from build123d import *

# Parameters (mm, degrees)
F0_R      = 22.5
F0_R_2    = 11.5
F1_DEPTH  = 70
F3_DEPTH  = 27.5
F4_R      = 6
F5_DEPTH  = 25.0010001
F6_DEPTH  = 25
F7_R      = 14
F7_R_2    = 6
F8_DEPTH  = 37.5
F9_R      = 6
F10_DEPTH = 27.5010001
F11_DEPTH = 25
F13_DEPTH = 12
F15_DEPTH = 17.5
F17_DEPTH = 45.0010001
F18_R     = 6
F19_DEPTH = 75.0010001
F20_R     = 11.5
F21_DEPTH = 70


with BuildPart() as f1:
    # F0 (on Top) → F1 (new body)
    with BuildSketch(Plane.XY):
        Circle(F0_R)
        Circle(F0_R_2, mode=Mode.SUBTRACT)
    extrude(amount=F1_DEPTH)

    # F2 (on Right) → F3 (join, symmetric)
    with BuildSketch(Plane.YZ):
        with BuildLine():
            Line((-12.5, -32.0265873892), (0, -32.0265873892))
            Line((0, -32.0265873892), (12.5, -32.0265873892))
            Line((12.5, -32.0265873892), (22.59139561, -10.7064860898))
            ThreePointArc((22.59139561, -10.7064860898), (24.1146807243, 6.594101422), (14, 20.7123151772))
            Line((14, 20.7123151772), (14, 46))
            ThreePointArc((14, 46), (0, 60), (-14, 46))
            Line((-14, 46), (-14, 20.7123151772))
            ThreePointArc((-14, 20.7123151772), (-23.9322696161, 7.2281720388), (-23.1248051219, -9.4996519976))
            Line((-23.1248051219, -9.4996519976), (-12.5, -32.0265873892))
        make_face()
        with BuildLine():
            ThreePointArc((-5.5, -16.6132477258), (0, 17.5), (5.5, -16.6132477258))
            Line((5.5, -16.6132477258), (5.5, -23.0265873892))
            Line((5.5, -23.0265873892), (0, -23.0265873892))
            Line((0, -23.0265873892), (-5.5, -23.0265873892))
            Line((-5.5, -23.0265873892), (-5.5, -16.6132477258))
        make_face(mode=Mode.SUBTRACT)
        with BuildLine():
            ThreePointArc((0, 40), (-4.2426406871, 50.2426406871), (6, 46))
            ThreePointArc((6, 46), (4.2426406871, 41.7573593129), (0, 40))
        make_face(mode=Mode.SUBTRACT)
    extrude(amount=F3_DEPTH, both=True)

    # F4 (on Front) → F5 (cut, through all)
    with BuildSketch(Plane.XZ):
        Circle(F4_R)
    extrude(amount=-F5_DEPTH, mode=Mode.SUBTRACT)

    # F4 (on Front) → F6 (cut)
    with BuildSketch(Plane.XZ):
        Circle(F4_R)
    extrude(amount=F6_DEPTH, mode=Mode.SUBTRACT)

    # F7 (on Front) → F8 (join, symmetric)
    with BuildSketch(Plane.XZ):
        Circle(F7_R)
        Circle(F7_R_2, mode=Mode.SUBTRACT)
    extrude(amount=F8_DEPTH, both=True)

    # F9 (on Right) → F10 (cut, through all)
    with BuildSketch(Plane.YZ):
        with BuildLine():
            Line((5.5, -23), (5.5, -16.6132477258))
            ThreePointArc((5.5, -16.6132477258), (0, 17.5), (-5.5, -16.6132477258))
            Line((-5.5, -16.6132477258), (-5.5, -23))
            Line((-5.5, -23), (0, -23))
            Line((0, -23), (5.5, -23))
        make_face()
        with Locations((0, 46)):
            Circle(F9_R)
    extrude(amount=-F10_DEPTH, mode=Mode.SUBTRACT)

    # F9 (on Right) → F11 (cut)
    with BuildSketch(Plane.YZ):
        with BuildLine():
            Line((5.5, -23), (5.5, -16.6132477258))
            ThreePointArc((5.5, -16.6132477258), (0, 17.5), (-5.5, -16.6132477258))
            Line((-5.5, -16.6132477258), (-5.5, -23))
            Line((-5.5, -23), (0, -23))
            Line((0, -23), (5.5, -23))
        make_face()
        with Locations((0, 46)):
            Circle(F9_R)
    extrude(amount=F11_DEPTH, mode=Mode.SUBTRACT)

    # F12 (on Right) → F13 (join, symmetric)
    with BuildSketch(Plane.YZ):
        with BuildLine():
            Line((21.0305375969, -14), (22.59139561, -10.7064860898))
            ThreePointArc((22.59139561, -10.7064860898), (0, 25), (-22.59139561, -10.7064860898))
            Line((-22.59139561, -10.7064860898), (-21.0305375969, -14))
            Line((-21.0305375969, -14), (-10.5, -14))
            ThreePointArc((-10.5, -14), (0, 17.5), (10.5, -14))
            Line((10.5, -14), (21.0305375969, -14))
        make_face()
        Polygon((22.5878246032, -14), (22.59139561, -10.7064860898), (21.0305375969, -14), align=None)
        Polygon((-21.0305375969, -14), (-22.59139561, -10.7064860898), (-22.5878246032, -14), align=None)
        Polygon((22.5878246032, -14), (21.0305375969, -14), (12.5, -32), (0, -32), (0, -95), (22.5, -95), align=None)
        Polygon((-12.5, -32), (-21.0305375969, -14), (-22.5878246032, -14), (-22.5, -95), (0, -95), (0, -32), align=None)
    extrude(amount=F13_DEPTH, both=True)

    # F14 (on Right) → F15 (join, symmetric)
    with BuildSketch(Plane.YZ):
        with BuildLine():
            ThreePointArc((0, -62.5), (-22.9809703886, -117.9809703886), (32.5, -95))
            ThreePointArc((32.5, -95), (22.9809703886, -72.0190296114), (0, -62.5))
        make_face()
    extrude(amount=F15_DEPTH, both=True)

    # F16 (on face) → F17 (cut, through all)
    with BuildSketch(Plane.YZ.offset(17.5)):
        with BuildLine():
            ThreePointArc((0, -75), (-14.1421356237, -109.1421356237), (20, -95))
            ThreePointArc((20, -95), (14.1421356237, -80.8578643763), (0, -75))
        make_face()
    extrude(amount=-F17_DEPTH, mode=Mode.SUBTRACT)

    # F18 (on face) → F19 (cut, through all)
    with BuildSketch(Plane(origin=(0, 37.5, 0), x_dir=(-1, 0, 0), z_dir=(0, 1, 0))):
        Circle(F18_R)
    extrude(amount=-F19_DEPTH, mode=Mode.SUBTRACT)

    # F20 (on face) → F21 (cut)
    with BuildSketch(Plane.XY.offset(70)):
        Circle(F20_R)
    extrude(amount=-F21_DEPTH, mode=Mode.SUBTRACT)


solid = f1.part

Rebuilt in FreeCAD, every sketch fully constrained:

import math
import FreeCAD as App
import Part
import Sketcher
from FreeCAD import Vector

doc = App.newDocument("Part")
body = doc.addObject("PartDesign::Body", "Body")

# Sketch on XY plane
sketch1 = body.newObject("Sketcher::SketchObject", "Sketch")
sketch1.AttachmentSupport = (doc.getObject("XY_Plane"), [""])
sketch1.MapMode = "FlatFace"
sketch1.addGeometry([
    Part.Circle(Vector(0, 0, 0), Vector(0, 0, 1), 22),
    Part.Circle(Vector(0, 0, 0), Vector(0, 0, 1), 12),
], False)
sketch1.addConstraint([
    Sketcher.Constraint("Coincident", 0, 3, -1, 1),
    Sketcher.Constraint("Coincident", 1, 3, -1, 1),
    Sketcher.Constraint("Diameter", 0, 45.0),
    Sketcher.Constraint("Diameter", 1, 23.0),
])
pad1 = body.newObject("PartDesign::Pad", "Pad")
pad1.Profile = sketch1
pad1.Length = 70

# Sketch on YZ plane
sketch2 = body.newObject("Sketcher::SketchObject", "Sketch001")
sketch2.AttachmentSupport = (doc.getObject("YZ_Plane"), [""])
sketch2.MapMode = "FlatFace"
sketch2.addGeometry([
    Part.LineSegment(Vector(-12, -32, 0), Vector(12, -32, 0)),  # 0
    Part.LineSegment(Vector(12, -32, 0), Vector(23, -11, 0)),  # 1
    Part.ArcOfCircle(Part.Circle(Vector(0, 0, 0), Vector(0, 0, 1), 25), math.radians(-25), math.radians(56)),  # 2
    Part.LineSegment(Vector(14, 21, 0), Vector(14, 46, 0)),  # 3
    Part.ArcOfCircle(Part.Circle(Vector(0, 46, 0), Vector(0, 0, 1), 14), math.radians(0), math.radians(180)),  # 4
    Part.LineSegment(Vector(-14, 46, 0), Vector(-14, 21, 0)),  # 5
    Part.ArcOfCircle(Part.Circle(Vector(0, 0, 0), Vector(0, 0, 1), 25), math.radians(124), math.radians(202)),  # 6
    Part.LineSegment(Vector(-23, -9, 0), Vector(-12, -32, 0)),  # 7
    Part.LineSegment(Vector(-6, -23, 0), Vector(-6, -17, 0)),  # 8
    Part.ArcOfCircle(Part.Circle(Vector(0, 0, 0), Vector(0, 0, 1), 18), math.radians(-72), math.radians(252)),  # 9
    Part.LineSegment(Vector(6, -17, 0), Vector(6, -23, 0)),  # 10
    Part.LineSegment(Vector(6, -23, 0), Vector(-6, -23, 0)),  # 11
    Part.ArcOfCircle(Part.Circle(Vector(0, 46, 0), Vector(0, 0, 1), 6), math.radians(-90), math.radians(0)),  # 12
    Part.ArcOfCircle(Part.Circle(Vector(0, 46, 0), Vector(0, 0, 1), 6), math.radians(0), math.radians(270)),  # 13
], False)
sketch2.addConstraint([
    Sketcher.Constraint("Coincident", 0, 2, 1, 1),
    Sketcher.Constraint("Coincident", 1, 2, 2, 1),
    Sketcher.Constraint("Coincident", 2, 2, 3, 1),
    Sketcher.Constraint("Tangent", 3, 2, 4, 1),
    Sketcher.Constraint("Tangent", 4, 2, 5, 1),
    Sketcher.Constraint("Coincident", 5, 2, 6, 1),
    Sketcher.Constraint("Coincident", 6, 2, 7, 1),
    Sketcher.Constraint("Coincident", 7, 2, 0, 1),
    Sketcher.Constraint("Coincident", 8, 2, 9, 2),
    Sketcher.Constraint("Coincident", 9, 1, 10, 1),
    Sketcher.Constraint("Coincident", 10, 2, 11, 1),
    Sketcher.Constraint("Coincident", 11, 2, 8, 1),
    Sketcher.Constraint("Tangent", 12, 1, 13, 2),
    Sketcher.Constraint("Coincident", 13, 1, 12, 2),
    Sketcher.Constraint("Horizontal", 0),
    Sketcher.Constraint("Vertical", 3),
    Sketcher.Constraint("Vertical", 5),
    Sketcher.Constraint("Vertical", 8),
    Sketcher.Constraint("Vertical", 10),
    Sketcher.Constraint("Horizontal", 11),
    Sketcher.Constraint("Coincident", 2, 3, -1, 1),
    Sketcher.Constraint("Coincident", 6, 3, -1, 1),
    Sketcher.Constraint("Coincident", 9, 3, -1, 1),
    Sketcher.Constraint("Coincident", 12, 3, 4, 3),
    Sketcher.Constraint("Equal", 2, 6),
    Sketcher.Constraint("PointOnObject", 4, 3, -2),
    Sketcher.Constraint("PointOnObject", 12, 1, -2),
    Sketcher.Constraint("Horizontal", 8, 2, 9, 1),
    Sketcher.Constraint("Horizontal", 4, 2, 13, 1),
    Sketcher.Constraint("Radius", 2, 25.0),
    Sketcher.Constraint("Radius", 4, 14.0),
    Sketcher.Constraint("Radius", 12, 6.0),
    Sketcher.Constraint("Radius", 9, 17.5),
    Sketcher.Constraint("DistanceX", 0, 1, 0, 2, 25.0),
    Sketcher.Constraint("DistanceX", 11, 2, 11, 1, 11.0),
    Sketcher.Constraint("DistanceY", -1, 1, 4, 3, 46.0),
    Sketcher.Constraint("DistanceX", 7, 2, 8, 2, 7.0),
    Sketcher.Constraint("DistanceY", 0, 2, 10, 2, 9.0),
    Sketcher.Constraint("DistanceY", 8, 1, 8, 2, 6.41334),
    Sketcher.Constraint("DistanceY", 0, 2, 1, 2, 21.320101),
    Sketcher.Constraint("DistanceY", 6, 2, -1, 1, 9.499652),
])
pad2 = body.newObject("PartDesign::Pad", "Pad001")
pad2.Profile = sketch2
pad2.Length = 55
pad2.Midplane = True

# Sketch on XZ plane
sketch3 = body.newObject("Sketcher::SketchObject", "Sketch002")
sketch3.AttachmentSupport = (doc.getObject("XZ_Plane"), [""])
sketch3.MapMode = "FlatFace"
sketch3.addGeometry(Part.Circle(Vector(0, 0, 0), Vector(0, 0, 1), 6), False)
sketch3.addConstraint([
    Sketcher.Constraint("Coincident", 0, 3, -1, 1),
    Sketcher.Constraint("Diameter", 0, 12.0),
])
pocket1 = body.newObject("PartDesign::Pocket", "Pocket")
pocket1.Profile = sketch3
pocket1.Type = "ThroughAll"

# Sketch on XZ plane
sketch4 = body.newObject("Sketcher::SketchObject", "Sketch003")
sketch4.AttachmentSupport = (doc.getObject("XZ_Plane"), [""])
sketch4.MapMode = "FlatFace"
sketch4.addGeometry(Part.Circle(Vector(0, 0, 0), Vector(0, 0, 1), 6), False)
sketch4.addConstraint([
    Sketcher.Constraint("Coincident", 0, 3, -1, 1),
    Sketcher.Constraint("Diameter", 0, 12.0),
])
pocket2 = body.newObject("PartDesign::Pocket", "Pocket001")
pocket2.Profile = sketch4
pocket2.Length = 25
pocket2.Reversed = True

# Sketch on XZ plane
sketch5 = body.newObject("Sketcher::SketchObject", "Sketch004")
sketch5.AttachmentSupport = (doc.getObject("XZ_Plane"), [""])
sketch5.MapMode = "FlatFace"
sketch5.addGeometry([
    Part.Circle(Vector(0, 0, 0), Vector(0, 0, 1), 14),
    Part.Circle(Vector(0, 0, 0), Vector(0, 0, 1), 6),
], False)
sketch5.addConstraint([
    Sketcher.Constraint("Coincident", 0, 3, -1, 1),
    Sketcher.Constraint("Coincident", 1, 3, -1, 1),
    Sketcher.Constraint("Diameter", 0, 28.0),
    Sketcher.Constraint("Diameter", 1, 12.0),
])
pad3 = body.newObject("PartDesign::Pad", "Pad002")
pad3.Profile = sketch5
pad3.Length = 75
pad3.Midplane = True

# Sketch on YZ plane
sketch6 = body.newObject("Sketcher::SketchObject", "Sketch005")
sketch6.AttachmentSupport = (doc.getObject("YZ_Plane"), [""])
sketch6.MapMode = "FlatFace"
sketch6.addGeometry([
    Part.LineSegment(Vector(6, -23, 0), Vector(6, -17, 0)),  # 0
    Part.ArcOfCircle(Part.Circle(Vector(0, 0, 0), Vector(0, 0, 1), 18), math.radians(-72), math.radians(252)),  # 1
    Part.LineSegment(Vector(-6, -17, 0), Vector(-6, -23, 0)),  # 2
    Part.LineSegment(Vector(-6, -23, 0), Vector(6, -23, 0)),  # 3
    Part.Circle(Vector(0, 46, 0), Vector(0, 0, 1), 6),  # 4
], False)
sketch6.addConstraint([
    Sketcher.Constraint("Coincident", 0, 2, 1, 1),
    Sketcher.Constraint("Coincident", 1, 2, 2, 1),
    Sketcher.Constraint("Coincident", 2, 2, 3, 1),
    Sketcher.Constraint("Coincident", 3, 2, 0, 1),
    Sketcher.Constraint("Vertical", 0),
    Sketcher.Constraint("Vertical", 2),
    Sketcher.Constraint("Horizontal", 3),
    Sketcher.Constraint("Coincident", 1, 3, -1, 1),
    Sketcher.Constraint("PointOnObject", 4, 3, -2),
    Sketcher.Constraint("Horizontal", 0, 2, 1, 2),
    Sketcher.Constraint("Diameter", 4, 12.0),
    Sketcher.Constraint("Radius", 1, 17.5),
    Sketcher.Constraint("DistanceX", 3, 1, 3, 2, 11.0),
    Sketcher.Constraint("DistanceY", -1, 1, 4, 3, 46.0),
    Sketcher.Constraint("DistanceY", 2, 2, -1, 1, 23.0),
])
pocket3 = body.newObject("PartDesign::Pocket", "Pocket002")
pocket3.Profile = sketch6
pocket3.Type = "ThroughAll"

# Sketch on YZ plane
sketch7 = body.newObject("Sketcher::SketchObject", "Sketch006")
sketch7.AttachmentSupport = (doc.getObject("YZ_Plane"), [""])
sketch7.MapMode = "FlatFace"
sketch7.addGeometry([
    Part.LineSegment(Vector(6, -23, 0), Vector(6, -17, 0)),  # 0
    Part.ArcOfCircle(Part.Circle(Vector(0, 0, 0), Vector(0, 0, 1), 18), math.radians(-72), math.radians(252)),  # 1
    Part.LineSegment(Vector(-6, -17, 0), Vector(-6, -23, 0)),  # 2
    Part.LineSegment(Vector(-6, -23, 0), Vector(6, -23, 0)),  # 3
    Part.Circle(Vector(0, 46, 0), Vector(0, 0, 1), 6),  # 4
], False)
sketch7.addConstraint([
    Sketcher.Constraint("Coincident", 0, 2, 1, 1),
    Sketcher.Constraint("Coincident", 1, 2, 2, 1),
    Sketcher.Constraint("Coincident", 2, 2, 3, 1),
    Sketcher.Constraint("Coincident", 3, 2, 0, 1),
    Sketcher.Constraint("Vertical", 0),
    Sketcher.Constraint("Vertical", 2),
    Sketcher.Constraint("Horizontal", 3),
    Sketcher.Constraint("Coincident", 1, 3, -1, 1),
    Sketcher.Constraint("PointOnObject", 4, 3, -2),
    Sketcher.Constraint("Horizontal", 0, 2, 1, 2),
    Sketcher.Constraint("Diameter", 4, 12.0),
    Sketcher.Constraint("Radius", 1, 17.5),
    Sketcher.Constraint("DistanceX", 3, 1, 3, 2, 11.0),
    Sketcher.Constraint("DistanceY", -1, 1, 4, 3, 46.0),
    Sketcher.Constraint("DistanceY", 2, 2, -1, 1, 23.0),
])
pocket4 = body.newObject("PartDesign::Pocket", "Pocket003")
pocket4.Profile = sketch7
pocket4.Length = 25
pocket4.Reversed = True

# Sketch on YZ plane
sketch8 = body.newObject("Sketcher::SketchObject", "Sketch007")
sketch8.AttachmentSupport = (doc.getObject("YZ_Plane"), [""])
sketch8.MapMode = "FlatFace"
sketch8.addGeometry([
    Part.ArcOfCircle(Part.Circle(Vector(0, 0, 0), Vector(0, 0, 1), 25), math.radians(-25), math.radians(205)),  # 0
    Part.LineSegment(Vector(-22.6, -10.7, 0), Vector(-22.6, -14, 0)),  # 1
    Part.LineSegment(Vector(-22.6, -14, 0), Vector(-22.5, -95, 0)),  # 2
    Part.LineSegment(Vector(-22.5, -95, 0), Vector(22.5, -95, 0)),  # 3
    Part.LineSegment(Vector(22.5, -95, 0), Vector(22.6, -14, 0)),  # 4
    Part.LineSegment(Vector(22.6, -14, 0), Vector(22.6, -10.7, 0)),  # 5
    Part.LineSegment(Vector(-21, -14, 0), Vector(-10.5, -14, 0)),  # 6
    Part.ArcOfCircle(Part.Circle(Vector(0, 0, 0), Vector(0, 0, 1), 17.5), math.radians(-53), math.radians(233)),  # 7
    Part.LineSegment(Vector(10.5, -14, 0), Vector(21, -14, 0)),  # 8
    Part.LineSegment(Vector(21, -14, 0), Vector(12.5, -32, 0)),  # 9
    Part.LineSegment(Vector(12.5, -32, 0), Vector(-12.5, -32, 0)),  # 10
    Part.LineSegment(Vector(-12.5, -32, 0), Vector(-21, -14, 0)),  # 11
], False)
sketch8.addConstraint([
    Sketcher.Constraint("Coincident", 0, 2, 1, 1),
    Sketcher.Constraint("Coincident", 1, 2, 2, 1),
    Sketcher.Constraint("Coincident", 2, 2, 3, 1),
    Sketcher.Constraint("Coincident", 3, 2, 4, 1),
    Sketcher.Constraint("Coincident", 4, 2, 5, 1),
    Sketcher.Constraint("Coincident", 5, 2, 0, 1),
    Sketcher.Constraint("Coincident", 6, 2, 7, 2),
    Sketcher.Constraint("Coincident", 7, 1, 8, 1),
    Sketcher.Constraint("Coincident", 8, 2, 9, 1),
    Sketcher.Constraint("Coincident", 9, 2, 10, 1),
    Sketcher.Constraint("Coincident", 10, 2, 11, 1),
    Sketcher.Constraint("Coincident", 11, 2, 6, 1),
    Sketcher.Constraint("Horizontal", 3),
    Sketcher.Constraint("Horizontal", 6),
    Sketcher.Constraint("Horizontal", 8),
    Sketcher.Constraint("Horizontal", 10),
    Sketcher.Constraint("Coincident", 0, 3, -1, 1),
    Sketcher.Constraint("Coincident", 7, 3, -1, 1),
    Sketcher.Constraint("Symmetric", 1, 2, 4, 2, -2),
    Sketcher.Constraint("Symmetric", 8, 2, 11, 2, -2),
    Sketcher.Constraint("Parallel", 1, 2),
    Sketcher.Constraint("Parallel", 4, 5),
    Sketcher.Constraint("Horizontal", 0, 2, 5, 2),
    Sketcher.Constraint("Horizontal", 4, 2, 6, 2),
    Sketcher.Constraint("Equal", 9, 11),
    Sketcher.Constraint("Radius", 0, 25.0),
    Sketcher.Constraint("Radius", 7, 17.5),
    Sketcher.Constraint("DistanceX", 3, 1, 3, 2, 45.0),
    Sketcher.Constraint("DistanceX", 10, 2, 10, 1, 25.0),
    Sketcher.Constraint("DistanceY", 1, 2, -1, 1, 14.0),
    Sketcher.Constraint("DistanceY", 2, 2, -1, 1, 95.0),
    Sketcher.Constraint("DistanceY", 9, 2, -1, 1, 32.0),
    Sketcher.Constraint("Distance", 9, 19.919088),
    Sketcher.Constraint("DistanceX", 1, 2, 4, 2, 45.175649),
])
pad4 = body.newObject("PartDesign::Pad", "Pad003")
pad4.Profile = sketch8
pad4.Length = 24
pad4.Midplane = True

# Sketch on YZ plane
sketch9 = body.newObject("Sketcher::SketchObject", "Sketch008")
sketch9.AttachmentSupport = (doc.getObject("YZ_Plane"), [""])
sketch9.MapMode = "FlatFace"
sketch9.addGeometry([
    Part.ArcOfCircle(Part.Circle(Vector(0, -95, 0), Vector(0, 0, 1), 32), math.radians(90), math.radians(360)),
    Part.ArcOfCircle(Part.Circle(Vector(0, -95, 0), Vector(0, 0, 1), 32), math.radians(0), math.radians(90)),
], False)
sketch9.addConstraint([
    Sketcher.Constraint("Tangent", 0, 1, 1, 2),
    Sketcher.Constraint("Coincident", 1, 1, 0, 2),
    Sketcher.Constraint("PointOnObject", 0, 3, -2),
    Sketcher.Constraint("PointOnObject", 0, 1, -2),
    Sketcher.Constraint("Horizontal", 0, 3, 1, 1),
    Sketcher.Constraint("Radius", 0, 32.5),
    Sketcher.Constraint("DistanceY", 0, 3, -1, 1, 95.0),
])
pad5 = body.newObject("PartDesign::Pad", "Pad004")
pad5.Profile = sketch9
pad5.Length = 35
pad5.Midplane = True

# Sketch on YZ plane
sketch10 = body.newObject("Sketcher::SketchObject", "Sketch009")
sketch10.AttachmentSupport = (doc.getObject("YZ_Plane"), [""])
sketch10.MapMode = "FlatFace"
sketch10.AttachmentOffset = App.Placement(Vector(0, 0, 17.5), App.Rotation())
sketch10.addGeometry([
    Part.ArcOfCircle(Part.Circle(Vector(0, -95, 0), Vector(0, 0, 1), 20), math.radians(90), math.radians(360)),
    Part.ArcOfCircle(Part.Circle(Vector(0, -95, 0), Vector(0, 0, 1), 20), math.radians(0), math.radians(90)),
], False)
sketch10.addConstraint([
    Sketcher.Constraint("Tangent", 0, 1, 1, 2),
    Sketcher.Constraint("Coincident", 1, 1, 0, 2),
    Sketcher.Constraint("PointOnObject", 0, 3, -2),
    Sketcher.Constraint("PointOnObject", 0, 1, -2),
    Sketcher.Constraint("Horizontal", 0, 3, 1, 1),
    Sketcher.Constraint("Radius", 0, 20.0),
    Sketcher.Constraint("DistanceY", 0, 3, -1, 1, 95.0),
])
pocket5 = body.newObject("PartDesign::Pocket", "Pocket004")
pocket5.Profile = sketch10
pocket5.Type = "ThroughAll"

# Sketch on XZ plane
sketch11 = body.newObject("Sketcher::SketchObject", "Sketch010")
sketch11.AttachmentSupport = (doc.getObject("XZ_Plane"), [""])
sketch11.MapMode = "FlatFace"
sketch11.AttachmentOffset = App.Placement(Vector(0, 0, -37.5), App.Rotation())
sketch11.addGeometry(Part.Circle(Vector(0, 0, 0), Vector(0, 0, 1), 6), False)
sketch11.addConstraint([
    Sketcher.Constraint("Coincident", 0, 3, -1, 1),
    Sketcher.Constraint("Diameter", 0, 12.0),
])
pocket6 = body.newObject("PartDesign::Pocket", "Pocket005")
pocket6.Profile = sketch11
pocket6.Type = "ThroughAll"
pocket6.Reversed = True

# Sketch on XY plane
sketch12 = body.newObject("Sketcher::SketchObject", "Sketch011")
sketch12.AttachmentSupport = (doc.getObject("XY_Plane"), [""])
sketch12.MapMode = "FlatFace"
sketch12.AttachmentOffset = App.Placement(Vector(0, 0, 70), App.Rotation())
sketch12.addGeometry(Part.Circle(Vector(0, 0, 0), Vector(0, 0, 1), 12), False)
sketch12.addConstraint([
    Sketcher.Constraint("Coincident", 0, 3, -1, 1),
    Sketcher.Constraint("Diameter", 0, 23.0),
])
pocket7 = body.newObject("PartDesign::Pocket", "Pocket006")
pocket7.Profile = sketch12
pocket7.Length = 70

doc.recompute()
